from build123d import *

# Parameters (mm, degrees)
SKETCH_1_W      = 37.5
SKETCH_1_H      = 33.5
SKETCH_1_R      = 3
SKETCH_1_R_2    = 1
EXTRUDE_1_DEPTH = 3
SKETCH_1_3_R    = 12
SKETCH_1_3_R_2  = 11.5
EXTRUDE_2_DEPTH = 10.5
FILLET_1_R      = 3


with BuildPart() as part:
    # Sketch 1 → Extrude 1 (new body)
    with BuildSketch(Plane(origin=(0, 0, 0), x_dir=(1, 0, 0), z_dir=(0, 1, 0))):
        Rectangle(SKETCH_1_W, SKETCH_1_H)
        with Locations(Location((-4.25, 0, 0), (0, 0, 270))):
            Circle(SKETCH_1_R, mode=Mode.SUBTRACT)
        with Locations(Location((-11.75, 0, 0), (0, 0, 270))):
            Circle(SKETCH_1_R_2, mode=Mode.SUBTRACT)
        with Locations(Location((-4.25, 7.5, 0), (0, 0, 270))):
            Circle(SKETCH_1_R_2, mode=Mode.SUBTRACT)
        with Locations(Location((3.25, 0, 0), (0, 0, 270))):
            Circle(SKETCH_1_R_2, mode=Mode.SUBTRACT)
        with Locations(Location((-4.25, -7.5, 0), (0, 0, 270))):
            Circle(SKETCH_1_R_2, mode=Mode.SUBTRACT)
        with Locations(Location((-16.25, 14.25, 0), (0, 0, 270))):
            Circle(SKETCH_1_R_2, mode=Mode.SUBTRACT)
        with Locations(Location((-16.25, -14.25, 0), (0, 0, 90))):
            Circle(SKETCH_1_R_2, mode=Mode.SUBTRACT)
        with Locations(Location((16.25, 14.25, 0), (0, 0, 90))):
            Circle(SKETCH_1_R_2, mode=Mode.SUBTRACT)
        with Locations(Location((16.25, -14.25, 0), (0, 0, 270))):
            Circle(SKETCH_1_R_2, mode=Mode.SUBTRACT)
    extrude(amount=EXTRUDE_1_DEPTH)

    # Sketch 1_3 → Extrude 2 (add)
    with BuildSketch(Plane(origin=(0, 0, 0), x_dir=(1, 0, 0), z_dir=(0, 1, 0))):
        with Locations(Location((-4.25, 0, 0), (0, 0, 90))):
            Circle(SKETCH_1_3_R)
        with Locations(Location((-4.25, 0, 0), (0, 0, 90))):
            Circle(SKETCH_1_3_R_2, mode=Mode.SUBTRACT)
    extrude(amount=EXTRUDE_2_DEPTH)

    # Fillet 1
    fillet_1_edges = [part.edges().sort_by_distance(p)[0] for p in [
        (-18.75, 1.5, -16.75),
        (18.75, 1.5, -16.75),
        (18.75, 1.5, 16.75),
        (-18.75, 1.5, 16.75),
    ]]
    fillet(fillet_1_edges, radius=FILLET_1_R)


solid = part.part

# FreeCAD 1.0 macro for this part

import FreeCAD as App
import Part
import Sketcher


def edges_at(feature, points):
    """Names of the edges that pass closest to the given points."""
    edges = feature.Shape.Edges
    near = lambda p: min(range(len(edges)), key=lambda i: edges[i].distToShape(Part.Vertex(*p))[0])
    return sorted({f"Edge{near(p) + 1}" for p in points})


def add_polygon(sketch, points):
    """Adds a closed chain of lines whose ends are joined by coincident constraints."""
    first, n = sketch.GeometryCount, len(points)
    for a, b in zip(points, points[1:] + points[:1]):
        sketch.addGeometry(Part.LineSegment(App.Vector(*a, 0), App.Vector(*b, 0)), False)
    for i in range(n):
        sketch.addConstraint(Sketcher.Constraint("Coincident", first + i, 2, first + (i + 1) % n, 1))

doc = App.newDocument("Part")
body = doc.addObject("PartDesign::Body", "Body")

# Sketch on XZ plane
sketch1 = body.newObject("Sketcher::SketchObject", "Sketch")
sketch1.AttachmentSupport = (doc.getObject("XZ_Plane"), [""])
sketch1.MapMode = "FlatFace"
add_polygon(sketch1, [(-18.8, -16.8), (-18.8, 16.8), (18.8, 16.8), (18.8, -16.8)])  # lines 0-3
sketch1.addGeometry(Part.Circle(App.Vector(-16.2, 14.2, 0), App.Vector(0, 0, 1), 1), False)  # 4
sketch1.addGeometry(Part.Circle(App.Vector(-4.2, 7.5, 0), App.Vector(0, 0, 1), 1), False)  # 5
sketch1.addGeometry(Part.Circle(App.Vector(16.2, 14.2, 0), App.Vector(0, 0, 1), 1), False)  # 6
sketch1.addGeometry(Part.Circle(App.Vector(-11.8, 0, 0), App.Vector(0, 0, 1), 1), False)  # 7
sketch1.addGeometry(Part.Circle(App.Vector(-4.2, 0, 0), App.Vector(0, 0, 1), 3), False)  # 8
sketch1.addGeometry(Part.Circle(App.Vector(-4.2, -7.5, 0), App.Vector(0, 0, 1), 1), False)  # 9
sketch1.addGeometry(Part.Circle(App.Vector(-16.2, -14.2, 0), App.Vector(0, 0, 1), 1), False)  # 10
sketch1.addGeometry(Part.Circle(App.Vector(3.2, 0, 0), App.Vector(0, 0, 1), 1), False)  # 11
sketch1.addGeometry(Part.Circle(App.Vector(16.2, -14.2, 0), App.Vector(0, 0, 1), 1), False)  # 12
sketch1.addConstraint([
    Sketcher.Constraint("Vertical", 0),
    Sketcher.Constraint("Horizontal", 1),
    Sketcher.Constraint("Vertical", 2),
    Sketcher.Constraint("Horizontal", 3),
    Sketcher.Constraint("Equal", 4, 5),
    Sketcher.Constraint("Equal", 5, 6),
    Sketcher.Constraint("Equal", 6, 7),
    Sketcher.Constraint("Equal", 7, 9),
    Sketcher.Constraint("Equal", 9, 10),
    Sketcher.Constraint("Equal", 10, 11),
    Sketcher.Constraint("Equal", 11, 12),
    Sketcher.Constraint("Symmetric", 6, 3, 10, 3, -1, 1),
    Sketcher.Constraint("Symmetric", 4, 3, 12, 3, -1, 1),
    Sketcher.Constraint("Symmetric", 0, 2, 2, 2, -1, 1),
    Sketcher.Constraint("Symmetric", 4, 3, 6, 3, -2),
    Sketcher.Constraint("Symmetric", 5, 3, 9, 3, -1),
    Sketcher.Constraint("PointOnObject", 7, 3, -1),
    Sketcher.Constraint("PointOnObject", 8, 3, -1),
    Sketcher.Constraint("PointOnObject", 11, 3, -1),
    Sketcher.Constraint("Vertical", 5, 3, 8, 3),
    Sketcher.Constraint("Diameter", 4, 2.0),
    Sketcher.Constraint("Diameter", 8, 6.0),
    Sketcher.Constraint("DistanceX", 1, 1, 1, 2, 37.5),
    Sketcher.Constraint("DistanceY", 0, 1, 0, 2, 33.5),
    Sketcher.Constraint("DistanceX", 4, 3, 5, 3, 12.0),
    Sketcher.Constraint("DistanceX", 7, 3, 6, 3, 28.0),
    Sketcher.Constraint("DistanceY", 9, 3, 5, 3, 15.0),
    Sketcher.Constraint("DistanceX", 7, 3, 11, 3, 15.0),
    Sketcher.Constraint("DistanceX", 0, 2, 7, 3, 7.0),
    Sketcher.Constraint("DistanceY", 12, 3, 1, 2, 31.0),
])
pad1 = body.newObject("PartDesign::Pad", "Pad")
pad1.Profile = sketch1
pad1.Length = 3
pad1.Reversed = True

# Sketch on XZ plane
sketch2 = body.newObject("Sketcher::SketchObject", "Sketch001")
sketch2.AttachmentSupport = (doc.getObject("XZ_Plane"), [""])
sketch2.MapMode = "FlatFace"
sketch2.addGeometry([
    Part.Circle(App.Vector(-4, 0, 0), App.Vector(0, 0, 1), 12),
    Part.Circle(App.Vector(-4, 0, 0), App.Vector(0, 0, 1), 12),
], False)
sketch2.addConstraint([
    Sketcher.Constraint("Coincident", 1, 3, 0, 3),
    Sketcher.Constraint("PointOnObject", 0, 3, -1),
    Sketcher.Constraint("Diameter", 0, 24.0),
    Sketcher.Constraint("Diameter", 1, 23.0),
    Sketcher.Constraint("DistanceX", 0, 3, -1, 1, 4.25),
])
pad2 = body.newObject("PartDesign::Pad", "Pad001")
pad2.Profile = sketch2
pad2.Length = 10.5
pad2.Reversed = True
doc.recompute()

fillet = body.newObject("PartDesign::Fillet", "Fillet")
fillet.Base = (pad2, edges_at(pad2, [
    (-18.75, 1.5, -16.75),
    (18.75, 1.5, -16.75),
    (18.75, 1.5, 16.75),
    (-18.75, 1.5, 16.75),
]))
fillet.Radius = 3

doc.recompute()
